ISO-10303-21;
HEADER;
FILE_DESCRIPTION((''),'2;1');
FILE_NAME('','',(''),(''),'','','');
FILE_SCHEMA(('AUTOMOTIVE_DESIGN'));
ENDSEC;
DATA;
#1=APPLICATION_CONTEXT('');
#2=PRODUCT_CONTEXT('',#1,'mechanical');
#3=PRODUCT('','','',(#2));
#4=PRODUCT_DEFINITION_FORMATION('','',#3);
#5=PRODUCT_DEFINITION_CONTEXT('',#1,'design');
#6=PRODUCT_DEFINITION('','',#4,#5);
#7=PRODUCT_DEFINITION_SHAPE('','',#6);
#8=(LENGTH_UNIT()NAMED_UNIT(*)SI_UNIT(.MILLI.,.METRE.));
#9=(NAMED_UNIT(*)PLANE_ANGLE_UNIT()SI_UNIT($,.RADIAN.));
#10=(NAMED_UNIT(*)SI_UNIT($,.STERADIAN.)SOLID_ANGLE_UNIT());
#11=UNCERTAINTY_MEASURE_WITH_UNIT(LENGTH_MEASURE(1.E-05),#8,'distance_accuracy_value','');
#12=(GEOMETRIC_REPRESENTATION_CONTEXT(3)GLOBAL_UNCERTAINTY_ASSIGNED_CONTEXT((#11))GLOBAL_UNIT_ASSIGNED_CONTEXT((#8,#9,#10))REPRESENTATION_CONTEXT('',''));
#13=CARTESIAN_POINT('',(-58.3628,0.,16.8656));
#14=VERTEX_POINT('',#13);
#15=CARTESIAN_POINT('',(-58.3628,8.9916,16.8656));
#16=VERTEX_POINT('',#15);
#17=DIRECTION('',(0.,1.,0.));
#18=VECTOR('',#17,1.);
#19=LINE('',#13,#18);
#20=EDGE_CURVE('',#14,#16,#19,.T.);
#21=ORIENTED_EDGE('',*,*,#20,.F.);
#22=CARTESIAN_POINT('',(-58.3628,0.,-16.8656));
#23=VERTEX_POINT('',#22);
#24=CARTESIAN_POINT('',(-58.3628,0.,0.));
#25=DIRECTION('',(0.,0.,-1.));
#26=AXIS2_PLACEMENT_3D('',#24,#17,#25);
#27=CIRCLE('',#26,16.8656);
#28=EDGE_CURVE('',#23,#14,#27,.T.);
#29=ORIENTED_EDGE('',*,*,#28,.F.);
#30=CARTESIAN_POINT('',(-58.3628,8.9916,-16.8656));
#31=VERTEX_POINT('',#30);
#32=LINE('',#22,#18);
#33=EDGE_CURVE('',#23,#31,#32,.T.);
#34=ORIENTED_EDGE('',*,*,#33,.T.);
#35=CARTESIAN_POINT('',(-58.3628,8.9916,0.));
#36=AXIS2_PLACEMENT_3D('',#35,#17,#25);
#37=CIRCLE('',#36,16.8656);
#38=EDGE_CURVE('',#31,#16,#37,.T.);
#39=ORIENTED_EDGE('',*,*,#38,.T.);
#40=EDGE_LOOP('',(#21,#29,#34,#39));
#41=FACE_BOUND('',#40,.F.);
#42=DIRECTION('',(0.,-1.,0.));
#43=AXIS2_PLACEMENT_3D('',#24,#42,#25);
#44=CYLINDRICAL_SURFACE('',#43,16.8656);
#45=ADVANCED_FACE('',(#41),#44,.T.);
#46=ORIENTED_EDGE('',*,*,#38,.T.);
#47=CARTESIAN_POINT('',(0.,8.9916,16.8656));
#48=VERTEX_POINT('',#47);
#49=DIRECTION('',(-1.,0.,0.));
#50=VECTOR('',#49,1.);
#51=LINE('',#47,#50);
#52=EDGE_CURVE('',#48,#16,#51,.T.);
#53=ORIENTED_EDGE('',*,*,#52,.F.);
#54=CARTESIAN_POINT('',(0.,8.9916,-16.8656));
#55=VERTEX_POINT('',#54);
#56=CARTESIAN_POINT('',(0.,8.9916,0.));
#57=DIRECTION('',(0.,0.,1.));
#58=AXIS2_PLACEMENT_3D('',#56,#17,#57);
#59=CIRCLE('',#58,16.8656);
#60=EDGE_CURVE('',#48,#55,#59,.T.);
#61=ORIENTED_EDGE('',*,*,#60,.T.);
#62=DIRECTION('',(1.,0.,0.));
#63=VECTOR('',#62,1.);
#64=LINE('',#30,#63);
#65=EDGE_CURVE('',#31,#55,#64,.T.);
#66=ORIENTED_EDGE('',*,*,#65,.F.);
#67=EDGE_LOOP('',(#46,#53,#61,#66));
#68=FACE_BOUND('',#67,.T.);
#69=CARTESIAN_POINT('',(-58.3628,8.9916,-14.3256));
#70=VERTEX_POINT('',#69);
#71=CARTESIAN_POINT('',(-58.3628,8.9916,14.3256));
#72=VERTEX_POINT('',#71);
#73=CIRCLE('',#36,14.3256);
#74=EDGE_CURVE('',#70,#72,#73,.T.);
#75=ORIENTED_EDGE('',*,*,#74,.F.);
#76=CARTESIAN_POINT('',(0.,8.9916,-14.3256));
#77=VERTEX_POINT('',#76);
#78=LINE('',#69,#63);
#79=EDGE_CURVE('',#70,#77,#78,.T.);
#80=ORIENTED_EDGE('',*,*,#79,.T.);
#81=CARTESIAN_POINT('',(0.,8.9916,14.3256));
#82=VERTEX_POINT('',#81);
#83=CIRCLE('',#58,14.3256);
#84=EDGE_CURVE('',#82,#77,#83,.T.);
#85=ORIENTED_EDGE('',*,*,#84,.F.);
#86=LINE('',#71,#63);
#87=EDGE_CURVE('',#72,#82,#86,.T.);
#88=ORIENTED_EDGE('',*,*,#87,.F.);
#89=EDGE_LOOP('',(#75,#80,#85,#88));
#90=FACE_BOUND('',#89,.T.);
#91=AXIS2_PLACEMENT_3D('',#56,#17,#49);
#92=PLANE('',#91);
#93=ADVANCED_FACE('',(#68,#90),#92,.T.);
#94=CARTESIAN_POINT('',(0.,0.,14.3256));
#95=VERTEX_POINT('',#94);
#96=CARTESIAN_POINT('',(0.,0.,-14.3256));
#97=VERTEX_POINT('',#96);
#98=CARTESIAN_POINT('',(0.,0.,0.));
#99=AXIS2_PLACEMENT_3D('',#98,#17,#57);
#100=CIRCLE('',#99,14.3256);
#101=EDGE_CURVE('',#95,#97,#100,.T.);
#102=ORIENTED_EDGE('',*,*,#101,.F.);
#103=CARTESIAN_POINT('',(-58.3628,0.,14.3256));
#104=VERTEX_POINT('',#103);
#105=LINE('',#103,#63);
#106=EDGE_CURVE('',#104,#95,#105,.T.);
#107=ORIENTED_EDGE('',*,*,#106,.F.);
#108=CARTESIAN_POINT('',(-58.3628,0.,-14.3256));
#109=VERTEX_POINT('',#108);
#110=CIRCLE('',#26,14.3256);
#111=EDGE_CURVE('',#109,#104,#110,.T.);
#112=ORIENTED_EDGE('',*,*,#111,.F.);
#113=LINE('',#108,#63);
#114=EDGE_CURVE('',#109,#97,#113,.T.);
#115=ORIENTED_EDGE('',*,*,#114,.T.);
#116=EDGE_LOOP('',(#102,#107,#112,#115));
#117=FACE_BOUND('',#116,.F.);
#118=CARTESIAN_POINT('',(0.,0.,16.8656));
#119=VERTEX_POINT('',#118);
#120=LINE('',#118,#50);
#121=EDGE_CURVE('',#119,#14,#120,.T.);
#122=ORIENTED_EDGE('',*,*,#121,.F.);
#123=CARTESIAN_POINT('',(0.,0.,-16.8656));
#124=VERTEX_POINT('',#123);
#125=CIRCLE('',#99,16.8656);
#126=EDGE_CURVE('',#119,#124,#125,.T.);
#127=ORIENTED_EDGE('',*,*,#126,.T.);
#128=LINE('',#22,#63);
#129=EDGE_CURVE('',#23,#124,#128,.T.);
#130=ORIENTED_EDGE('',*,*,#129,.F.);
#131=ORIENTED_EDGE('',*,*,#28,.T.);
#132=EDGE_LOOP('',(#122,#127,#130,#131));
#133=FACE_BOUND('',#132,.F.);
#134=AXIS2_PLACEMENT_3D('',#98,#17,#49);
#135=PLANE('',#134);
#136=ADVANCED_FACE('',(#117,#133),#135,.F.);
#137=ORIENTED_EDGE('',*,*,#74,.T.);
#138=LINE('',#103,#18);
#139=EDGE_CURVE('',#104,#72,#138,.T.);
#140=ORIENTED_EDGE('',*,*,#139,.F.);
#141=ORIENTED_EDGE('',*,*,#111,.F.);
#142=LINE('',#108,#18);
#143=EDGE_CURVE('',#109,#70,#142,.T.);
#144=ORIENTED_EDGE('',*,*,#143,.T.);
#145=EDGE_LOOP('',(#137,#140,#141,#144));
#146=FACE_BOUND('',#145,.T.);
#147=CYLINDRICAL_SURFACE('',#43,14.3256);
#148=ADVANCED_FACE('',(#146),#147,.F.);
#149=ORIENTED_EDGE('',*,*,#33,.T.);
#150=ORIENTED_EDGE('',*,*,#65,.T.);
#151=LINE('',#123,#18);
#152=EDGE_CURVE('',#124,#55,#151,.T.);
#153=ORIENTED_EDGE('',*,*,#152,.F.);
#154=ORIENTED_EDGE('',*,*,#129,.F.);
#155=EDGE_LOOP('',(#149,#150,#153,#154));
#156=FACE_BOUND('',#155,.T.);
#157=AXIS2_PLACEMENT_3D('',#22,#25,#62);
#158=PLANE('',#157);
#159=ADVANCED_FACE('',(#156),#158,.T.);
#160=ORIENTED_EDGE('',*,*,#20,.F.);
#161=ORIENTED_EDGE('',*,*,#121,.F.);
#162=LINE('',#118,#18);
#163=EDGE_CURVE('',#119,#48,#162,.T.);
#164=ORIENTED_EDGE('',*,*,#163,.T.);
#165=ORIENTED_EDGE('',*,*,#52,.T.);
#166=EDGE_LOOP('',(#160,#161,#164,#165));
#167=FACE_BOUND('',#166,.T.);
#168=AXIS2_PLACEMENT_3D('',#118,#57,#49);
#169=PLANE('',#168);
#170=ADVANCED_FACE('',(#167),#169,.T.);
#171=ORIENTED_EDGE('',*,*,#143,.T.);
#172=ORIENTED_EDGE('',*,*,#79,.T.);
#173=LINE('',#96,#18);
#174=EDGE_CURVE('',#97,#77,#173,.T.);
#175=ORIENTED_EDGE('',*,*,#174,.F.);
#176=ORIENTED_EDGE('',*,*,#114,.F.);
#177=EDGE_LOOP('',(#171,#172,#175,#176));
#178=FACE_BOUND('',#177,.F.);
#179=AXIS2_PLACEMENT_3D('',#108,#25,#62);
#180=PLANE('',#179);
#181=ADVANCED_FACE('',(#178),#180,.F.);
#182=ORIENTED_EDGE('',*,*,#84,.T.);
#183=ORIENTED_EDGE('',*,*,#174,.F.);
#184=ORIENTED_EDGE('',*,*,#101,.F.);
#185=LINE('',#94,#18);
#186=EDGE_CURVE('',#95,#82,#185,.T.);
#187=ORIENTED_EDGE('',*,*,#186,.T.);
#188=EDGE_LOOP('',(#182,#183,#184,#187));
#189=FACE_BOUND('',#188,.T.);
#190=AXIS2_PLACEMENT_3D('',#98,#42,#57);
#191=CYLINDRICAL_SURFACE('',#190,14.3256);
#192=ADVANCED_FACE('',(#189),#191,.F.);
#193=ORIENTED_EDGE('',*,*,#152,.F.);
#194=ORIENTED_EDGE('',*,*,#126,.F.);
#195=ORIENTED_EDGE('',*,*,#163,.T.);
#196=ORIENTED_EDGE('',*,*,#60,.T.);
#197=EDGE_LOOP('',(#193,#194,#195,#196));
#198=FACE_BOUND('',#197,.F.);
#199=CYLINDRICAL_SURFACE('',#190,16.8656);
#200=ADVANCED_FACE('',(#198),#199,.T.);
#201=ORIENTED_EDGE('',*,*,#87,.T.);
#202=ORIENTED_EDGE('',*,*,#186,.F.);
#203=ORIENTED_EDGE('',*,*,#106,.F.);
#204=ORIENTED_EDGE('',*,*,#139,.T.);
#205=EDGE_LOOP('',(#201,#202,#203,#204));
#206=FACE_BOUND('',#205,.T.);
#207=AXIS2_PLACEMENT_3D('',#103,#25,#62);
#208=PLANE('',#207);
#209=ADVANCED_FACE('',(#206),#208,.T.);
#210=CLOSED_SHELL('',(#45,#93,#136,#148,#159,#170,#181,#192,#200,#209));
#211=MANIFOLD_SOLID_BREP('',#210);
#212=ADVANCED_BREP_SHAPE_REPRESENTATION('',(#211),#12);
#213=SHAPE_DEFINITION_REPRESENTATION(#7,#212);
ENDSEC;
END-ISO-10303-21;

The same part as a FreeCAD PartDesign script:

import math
import FreeCAD as App
import Part
import Sketcher
from FreeCAD import Vector
Q = App.Units.Quantity

doc = App.newDocument("Part")
body = doc.addObject("PartDesign::Body", "Body")

# Sketch on XZ plane
sketch1 = body.newObject("Sketcher::SketchObject", "Sketch")
sketch1.AttachmentSupport = (doc.getObject("XZ_Plane"), [""])
sketch1.MapMode = "FlatFace"
sketch1.addGeometry([
    Part.LineSegment(Vector(-58, 17, 0), Vector(0, 17, 0)),  # 0
    Part.ArcOfCircle(Part.Circle(Vector(0, 0, 0), Vector(0, 0, 1), 17), math.radians(-90), math.radians(90)),  # 1
    Part.LineSegment(Vector(0, -17, 0), Vector(-58, -17, 0)),  # 2
    Part.ArcOfCircle(Part.Circle(Vector(-58, 0, 0), Vector(0, 0, 1), 17), math.radians(90), math.radians(270)),  # 3
    Part.LineSegment(Vector(0, 14, 0), Vector(-58, 14, 0)),  # 4
    Part.ArcOfCircle(Part.Circle(Vector(-58, 0, 0), Vector(0, 0, 1), 14), math.radians(90), math.radians(270)),  # 5
    Part.LineSegment(Vector(-58, -14, 0), Vector(0, -14, 0)),  # 6
    Part.ArcOfCircle(Part.Circle(Vector(0, 0, 0), Vector(0, 0, 1), 14), math.radians(-90), math.radians(90)),  # 7
], False)
sketch1.addConstraint([
    Sketcher.Constraint("Tangent", 0, 2, 1, 2),
    Sketcher.Constraint("Tangent", 1, 1, 2, 1),
    Sketcher.Constraint("Tangent", 2, 2, 3, 2),
    Sketcher.Constraint("Tangent", 3, 1, 0, 1),
    Sketcher.Constraint("Tangent", 4, 2, 5, 1),
    Sketcher.Constraint("Tangent", 5, 2, 6, 1),
    Sketcher.Constraint("Tangent", 6, 2, 7, 1),
    Sketcher.Constraint("Tangent", 7, 2, 4, 1),
    Sketcher.Constraint("Horizontal", 0),
    Sketcher.Constraint("Horizontal", 2),
    Sketcher.Constraint("Horizontal", 4),
    Sketcher.Constraint("Horizontal", 6),
    Sketcher.Constraint("Coincident", 1, 3, -1, 1),
    Sketcher.Constraint("Coincident", 7, 3, -1, 1),
    Sketcher.Constraint("Vertical", 5, 3, 2, 2),
    Sketcher.Constraint("Radius", 5, Q("0.564 in")),
    Sketcher.Constraint("DistanceY", 4, 2, 3, 1, Q("0.1 in")),
    Sketcher.Constraint("DistanceX", 0, 1, 0, 2, Q("58.3628 mm")),
])
pad1 = body.newObject("PartDesign::Pad", "Pad")
pad1.Profile = sketch1
pad1.Length = Q("0.354 in")
pad1.Reversed = True

doc.recompute()
